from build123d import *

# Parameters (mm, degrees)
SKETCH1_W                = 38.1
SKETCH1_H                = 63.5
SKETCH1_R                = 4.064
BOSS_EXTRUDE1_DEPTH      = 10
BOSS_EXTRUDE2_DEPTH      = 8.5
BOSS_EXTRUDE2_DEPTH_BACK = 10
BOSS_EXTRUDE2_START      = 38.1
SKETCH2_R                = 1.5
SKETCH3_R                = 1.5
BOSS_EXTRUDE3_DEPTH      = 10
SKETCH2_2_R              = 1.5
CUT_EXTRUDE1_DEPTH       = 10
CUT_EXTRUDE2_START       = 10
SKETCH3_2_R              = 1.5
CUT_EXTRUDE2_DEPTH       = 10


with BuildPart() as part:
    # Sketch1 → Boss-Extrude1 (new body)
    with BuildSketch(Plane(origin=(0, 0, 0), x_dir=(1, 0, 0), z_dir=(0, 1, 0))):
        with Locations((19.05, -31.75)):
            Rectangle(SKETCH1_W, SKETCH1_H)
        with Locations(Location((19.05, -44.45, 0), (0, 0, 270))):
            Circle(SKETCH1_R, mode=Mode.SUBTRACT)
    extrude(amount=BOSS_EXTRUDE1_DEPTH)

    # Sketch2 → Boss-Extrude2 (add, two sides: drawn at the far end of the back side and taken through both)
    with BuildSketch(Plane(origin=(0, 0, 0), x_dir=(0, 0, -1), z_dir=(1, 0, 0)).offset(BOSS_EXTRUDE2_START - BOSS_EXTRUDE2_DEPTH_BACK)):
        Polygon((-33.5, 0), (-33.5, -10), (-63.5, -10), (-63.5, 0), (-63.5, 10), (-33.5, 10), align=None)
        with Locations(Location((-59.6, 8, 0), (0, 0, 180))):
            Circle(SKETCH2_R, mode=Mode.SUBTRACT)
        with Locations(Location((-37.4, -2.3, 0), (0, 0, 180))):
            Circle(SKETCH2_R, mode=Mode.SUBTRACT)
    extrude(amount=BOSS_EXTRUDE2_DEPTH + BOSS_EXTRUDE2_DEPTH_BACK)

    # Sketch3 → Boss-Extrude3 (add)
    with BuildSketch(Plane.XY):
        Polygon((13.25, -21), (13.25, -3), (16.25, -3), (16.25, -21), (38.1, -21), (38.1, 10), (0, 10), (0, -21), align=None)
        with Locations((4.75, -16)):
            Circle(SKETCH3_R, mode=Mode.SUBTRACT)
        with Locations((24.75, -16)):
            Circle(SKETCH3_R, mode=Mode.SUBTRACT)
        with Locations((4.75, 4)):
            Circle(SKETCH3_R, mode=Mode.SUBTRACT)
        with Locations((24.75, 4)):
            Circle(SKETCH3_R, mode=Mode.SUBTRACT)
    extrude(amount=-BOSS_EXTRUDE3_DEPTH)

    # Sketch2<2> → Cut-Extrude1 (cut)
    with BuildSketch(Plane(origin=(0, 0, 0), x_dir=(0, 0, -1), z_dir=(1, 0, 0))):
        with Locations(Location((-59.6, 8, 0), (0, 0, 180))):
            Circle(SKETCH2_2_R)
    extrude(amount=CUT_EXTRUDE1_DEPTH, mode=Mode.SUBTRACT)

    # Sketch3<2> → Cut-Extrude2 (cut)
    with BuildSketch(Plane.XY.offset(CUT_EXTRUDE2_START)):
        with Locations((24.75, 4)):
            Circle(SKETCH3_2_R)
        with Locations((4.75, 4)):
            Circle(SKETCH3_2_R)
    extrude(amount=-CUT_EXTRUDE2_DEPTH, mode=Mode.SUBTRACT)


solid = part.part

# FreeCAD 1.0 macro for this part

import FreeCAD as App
import Part
import Sketcher
from FreeCAD import Vector
Q = App.Units.Quantity


def add_polygon(sketch, points):
    """Adds a closed chain of lines whose ends are joined by coincident constraints."""
    first, n = sketch.GeometryCount, len(points)
    for a, b in zip(points, points[1:] + points[:1]):
        sketch.addGeometry(Part.LineSegment(App.Vector(*a, 0), App.Vector(*b, 0)), False)
    for i in range(n):
        sketch.addConstraint(Sketcher.Constraint("Coincident", first + i, 2, first + (i + 1) % n, 1))

doc = App.newDocument("Part")
params = doc.addObject("Spreadsheet::Sheet", "Params")
for row, (alias, value) in enumerate([
    ("sketch1_width", "38.1 mm"),
    ("sketch1_height", "63.5 mm"),
    ("pad1_length", "10 mm"),
    ("sketch2_diameter", "3 mm"),
    ("sketch2_width", "20 mm"),
    ("sketch2_height", "30 mm"),
    ("pad2_length", "8.5 mm"),
    ("pad2_length2", "10 mm"),
    ("sketch3_diameter", "3 mm"),
    ("sketch3_width", "3 mm"),
    ("sketch3_height", "18 mm"),
    ("sketch3_height2", "31 mm"),
    ("sketch3_width2", "38.1 mm"),
    ("pad3_length", "10 mm"),
    ("sketch4_diameter", "3 mm"),
    ("pocket1_length", "10 mm"),
    ("sketch5_diameter", "3 mm"),
    ("pocket2_length", "10 mm"),
], start=1):
    params.set(f"A{row}", alias)
    params.set(f"B{row}", "=" + value)
    params.setAlias(f"B{row}", alias)

body = doc.addObject("PartDesign::Body", "Body")

# Sketch on XZ plane
sketch1 = body.newObject("Sketcher::SketchObject", "Sketch")
sketch1.AttachmentSupport = (doc.getObject("XZ_Plane"), [""])
sketch1.MapMode = "FlatFace"
add_polygon(sketch1, [(0, 0), (0, 63.5), (38.1, 63.5), (38.1, 0)])  # lines 0-3
sketch1.addGeometry(Part.Circle(Vector(19.1, 44.5, 0), Vector(0, 0, 1), 4.1), False)  # 4
sketch1.addConstraint([
    Sketcher.Constraint("Vertical", 0),
    Sketcher.Constraint("Horizontal", 1),
    Sketcher.Constraint("Vertical", 2),
    Sketcher.Constraint("Horizontal", 3),
    Sketcher.Constraint("Coincident", 3, 2, -1, 1),
    Sketcher.Constraint("Diameter", 4, Q("8.128 mm")),
    Sketcher.Constraint("DistanceX", 1, 1, 1, 2, Q("38.1 mm")),
    Sketcher.Constraint("DistanceY", 0, 1, 0, 2, Q("63.5 mm")),
    Sketcher.Constraint("DistanceX", -1, 1, 4, 3, Q("19.05 mm")),
    Sketcher.Constraint("DistanceY", -1, 1, 4, 3, Q("44.45 mm")),
])
sketch1.setExpression("Constraints[10]", "Params.sketch1_width")
sketch1.setExpression("Constraints[11]", "Params.sketch1_height")
pad1 = body.newObject("PartDesign::Pad", "Pad")
pad1.Profile = sketch1
pad1.setExpression("Length", "Params.pad1_length")
pad1.Reversed = True

# Sketch on YZ plane
sketch2 = body.newObject("Sketcher::SketchObject", "Sketch001")
sketch2.AttachmentSupport = (doc.getObject("YZ_Plane"), [""])
sketch2.MapMode = "FlatFace"
sketch2.AttachmentOffset = App.Placement(Vector(0, 0, 38.1), App.Rotation())
add_polygon(sketch2, [(-10, 33.5), (10, 33.5), (10, 63.5), (-10, 63.5)])  # lines 0-3
sketch2.addGeometry(Part.Circle(Vector(-2.3, 37.4, 0), Vector(0, 0, 1), 1.5), False)  # 4
sketch2.addGeometry(Part.Circle(Vector(8, 59.6, 0), Vector(0, 0, 1), 1.5), False)  # 5
sketch2.addConstraint([
    Sketcher.Constraint("Horizontal", 0),
    Sketcher.Constraint("Vertical", 1),
    Sketcher.Constraint("Horizontal", 2),
    Sketcher.Constraint("Vertical", 3),
    Sketcher.Constraint("Equal", 4, 5),
    Sketcher.Constraint("Diameter", 4, Q("3 mm")),
    Sketcher.Constraint("DistanceX", 0, 1, 0, 2, Q("20 mm")),
    Sketcher.Constraint("DistanceY", 1, 1, 1, 2, Q("30 mm")),
    Sketcher.Constraint("DistanceX", -1, 1, 5, 3, Q("8 mm")),
    Sketcher.Constraint("DistanceX", -1, 1, 0, 2, Q("10 mm")),
    Sketcher.Constraint("DistanceX", 4, 3, -1, 1, Q("2.3 mm")),
    Sketcher.Constraint("DistanceY", -1, 1, 4, 3, Q("37.4 mm")),
    Sketcher.Constraint("DistanceY", -1, 1, 5, 3, Q("59.6 mm")),
    Sketcher.Constraint("DistanceY", -1, 1, 0, 2, Q("33.5 mm")),
])
sketch2.setExpression("Constraints[9]", "Params.sketch2_diameter")
sketch2.setExpression("Constraints[10]", "Params.sketch2_width")
sketch2.setExpression("Constraints[11]", "Params.sketch2_height")
pad2 = body.newObject("PartDesign::Pad", "Pad001")
pad2.Profile = sketch2
pad2.Type = "TwoLengths"
pad2.setExpression("Length", "Params.pad2_length")
pad2.setExpression("Length2", "Params.pad2_length2")

# Sketch on XY plane
sketch3 = body.newObject("Sketcher::SketchObject", "Sketch002")
sketch3.AttachmentSupport = (doc.getObject("XY_Plane"), [""])
sketch3.MapMode = "FlatFace"
add_polygon(sketch3, [(13.2, -21), (13.2, -3), (16.2, -3), (16.2, -21), (38.1, -21), (38.1, 10), (0, 10), (0, -21)])  # lines 0-7
sketch3.addGeometry(Part.Circle(Vector(4.8, -16, 0), Vector(0, 0, 1), 1.5), False)  # 8
sketch3.addGeometry(Part.Circle(Vector(24.8, -16, 0), Vector(0, 0, 1), 1.5), False)  # 9
sketch3.addGeometry(Part.Circle(Vector(4.8, 4, 0), Vector(0, 0, 1), 1.5), False)  # 10
sketch3.addGeometry(Part.Circle(Vector(24.8, 4, 0), Vector(0, 0, 1), 1.5), False)  # 11
sketch3.addConstraint([
    Sketcher.Constraint("Vertical", 0),
    Sketcher.Constraint("Horizontal", 1),
    Sketcher.Constraint("Vertical", 2),
    Sketcher.Constraint("Horizontal", 3),
    Sketcher.Constraint("Vertical", 4),
    Sketcher.Constraint("Horizontal", 5),
    Sketcher.Constraint("Vertical", 6),
    Sketcher.Constraint("Horizontal", 7),
    Sketcher.Constraint("Equal", 8, 9),
    Sketcher.Constraint("Equal", 9, 10),
    Sketcher.Constraint("Equal", 10, 11),
    Sketcher.Constraint("PointOnObject", 5, 2, -2),
    Sketcher.Constraint("Horizontal", 8, 3, 9, 3),
    Sketcher.Constraint("Horizontal", 10, 3, 11, 3),
    Sketcher.Constraint("Horizontal", 3, 2, 6, 2),
    Sketcher.Constraint("Vertical", 8, 3, 10, 3),
    Sketcher.Constraint("Vertical", 9, 3, 11, 3),
    Sketcher.Constraint("Diameter", 8, Q("3 mm")),
    Sketcher.Constraint("DistanceX", 1, 1, 1, 2, Q("3 mm")),
    Sketcher.Constraint("DistanceY", 0, 1, 0, 2, Q("18 mm")),
    Sketcher.Constraint("DistanceY", 4, 1, 4, 2, Q("31 mm")),
    Sketcher.Constraint("DistanceX", 5, 2, 5, 1, Q("38.1 mm")),
    Sketcher.Constraint("DistanceY", 8, 3, -1, 1, Q("16 mm")),
    Sketcher.Constraint("DistanceY", -1, 1, 10, 3, Q("4 mm")),
    Sketcher.Constraint("DistanceY", 0, 2, -1, 1, Q("3 mm")),
    Sketcher.Constraint("DistanceX", 8, 3, 9, 3, Q("20 mm")),
    Sketcher.Constraint("DistanceX", 3, 1, 3, 2, Q("21.85 mm")),
    Sketcher.Constraint("DistanceX", 10, 3, 0, 2, Q("8.5 mm")),
])
sketch3.setExpression("Constraints[25]", "Params.sketch3_diameter")
sketch3.setExpression("Constraints[26]", "Params.sketch3_width")
sketch3.setExpression("Constraints[27]", "Params.sketch3_height")
sketch3.setExpression("Constraints[28]", "Params.sketch3_height2")
sketch3.setExpression("Constraints[29]", "Params.sketch3_width2")
pad3 = body.newObject("PartDesign::Pad", "Pad002")
pad3.Profile = sketch3
pad3.setExpression("Length", "Params.pad3_length")
pad3.Reversed = True

# Sketch on YZ plane
sketch4 = body.newObject("Sketcher::SketchObject", "Sketch003")
sketch4.AttachmentSupport = (doc.getObject("YZ_Plane"), [""])
sketch4.MapMode = "FlatFace"
sketch4.addGeometry(Part.Circle(Vector(8, 59.6, 0), Vector(0, 0, 1), 1.5), False)
sketch4.addConstraint([
    Sketcher.Constraint("Diameter", 0, Q("3 mm")),
    Sketcher.Constraint("DistanceX", -1, 1, 0, 3, Q("8 mm")),
    Sketcher.Constraint("DistanceY", -1, 1, 0, 3, Q("59.6 mm")),
])
sketch4.setExpression("Constraints[0]", "Params.sketch4_diameter")
pocket1 = body.newObject("PartDesign::Pocket", "Pocket")
pocket1.Profile = sketch4
pocket1.setExpression("Length", "Params.pocket1_length")
pocket1.Reversed = True

# Sketch on XY plane
sketch5 = body.newObject("Sketcher::SketchObject", "Sketch004")
sketch5.AttachmentSupport = (doc.getObject("XY_Plane"), [""])
sketch5.MapMode = "FlatFace"
sketch5.AttachmentOffset = App.Placement(Vector(0, 0, 10), App.Rotation())
sketch5.addGeometry([
    Part.Circle(Vector(24.8, 4, 0), Vector(0, 0, 1), 1.5),
    Part.Circle(Vector(4.8, 4, 0), Vector(0, 0, 1), 1.5),
], False)
sketch5.addConstraint([
    Sketcher.Constraint("Equal", 0, 1),
    Sketcher.Constraint("Horizontal", 0, 3, 1, 3),
    Sketcher.Constraint("Diameter", 0, Q("3 mm")),
    Sketcher.Constraint("DistanceY", -1, 1, 0, 3, Q("4 mm")),
    Sketcher.Constraint("DistanceX", 1, 3, 0, 3, Q("20 mm")),
    Sketcher.Constraint("DistanceX", -1, 1, 0, 3, Q("24.75 mm")),
])
sketch5.setExpression("Constraints[2]", "Params.sketch5_diameter")
pocket2 = body.newObject("PartDesign::Pocket", "Pocket001")
pocket2.Profile = sketch5
pocket2.setExpression("Length", "Params.pocket2_length")

doc.recompute()
